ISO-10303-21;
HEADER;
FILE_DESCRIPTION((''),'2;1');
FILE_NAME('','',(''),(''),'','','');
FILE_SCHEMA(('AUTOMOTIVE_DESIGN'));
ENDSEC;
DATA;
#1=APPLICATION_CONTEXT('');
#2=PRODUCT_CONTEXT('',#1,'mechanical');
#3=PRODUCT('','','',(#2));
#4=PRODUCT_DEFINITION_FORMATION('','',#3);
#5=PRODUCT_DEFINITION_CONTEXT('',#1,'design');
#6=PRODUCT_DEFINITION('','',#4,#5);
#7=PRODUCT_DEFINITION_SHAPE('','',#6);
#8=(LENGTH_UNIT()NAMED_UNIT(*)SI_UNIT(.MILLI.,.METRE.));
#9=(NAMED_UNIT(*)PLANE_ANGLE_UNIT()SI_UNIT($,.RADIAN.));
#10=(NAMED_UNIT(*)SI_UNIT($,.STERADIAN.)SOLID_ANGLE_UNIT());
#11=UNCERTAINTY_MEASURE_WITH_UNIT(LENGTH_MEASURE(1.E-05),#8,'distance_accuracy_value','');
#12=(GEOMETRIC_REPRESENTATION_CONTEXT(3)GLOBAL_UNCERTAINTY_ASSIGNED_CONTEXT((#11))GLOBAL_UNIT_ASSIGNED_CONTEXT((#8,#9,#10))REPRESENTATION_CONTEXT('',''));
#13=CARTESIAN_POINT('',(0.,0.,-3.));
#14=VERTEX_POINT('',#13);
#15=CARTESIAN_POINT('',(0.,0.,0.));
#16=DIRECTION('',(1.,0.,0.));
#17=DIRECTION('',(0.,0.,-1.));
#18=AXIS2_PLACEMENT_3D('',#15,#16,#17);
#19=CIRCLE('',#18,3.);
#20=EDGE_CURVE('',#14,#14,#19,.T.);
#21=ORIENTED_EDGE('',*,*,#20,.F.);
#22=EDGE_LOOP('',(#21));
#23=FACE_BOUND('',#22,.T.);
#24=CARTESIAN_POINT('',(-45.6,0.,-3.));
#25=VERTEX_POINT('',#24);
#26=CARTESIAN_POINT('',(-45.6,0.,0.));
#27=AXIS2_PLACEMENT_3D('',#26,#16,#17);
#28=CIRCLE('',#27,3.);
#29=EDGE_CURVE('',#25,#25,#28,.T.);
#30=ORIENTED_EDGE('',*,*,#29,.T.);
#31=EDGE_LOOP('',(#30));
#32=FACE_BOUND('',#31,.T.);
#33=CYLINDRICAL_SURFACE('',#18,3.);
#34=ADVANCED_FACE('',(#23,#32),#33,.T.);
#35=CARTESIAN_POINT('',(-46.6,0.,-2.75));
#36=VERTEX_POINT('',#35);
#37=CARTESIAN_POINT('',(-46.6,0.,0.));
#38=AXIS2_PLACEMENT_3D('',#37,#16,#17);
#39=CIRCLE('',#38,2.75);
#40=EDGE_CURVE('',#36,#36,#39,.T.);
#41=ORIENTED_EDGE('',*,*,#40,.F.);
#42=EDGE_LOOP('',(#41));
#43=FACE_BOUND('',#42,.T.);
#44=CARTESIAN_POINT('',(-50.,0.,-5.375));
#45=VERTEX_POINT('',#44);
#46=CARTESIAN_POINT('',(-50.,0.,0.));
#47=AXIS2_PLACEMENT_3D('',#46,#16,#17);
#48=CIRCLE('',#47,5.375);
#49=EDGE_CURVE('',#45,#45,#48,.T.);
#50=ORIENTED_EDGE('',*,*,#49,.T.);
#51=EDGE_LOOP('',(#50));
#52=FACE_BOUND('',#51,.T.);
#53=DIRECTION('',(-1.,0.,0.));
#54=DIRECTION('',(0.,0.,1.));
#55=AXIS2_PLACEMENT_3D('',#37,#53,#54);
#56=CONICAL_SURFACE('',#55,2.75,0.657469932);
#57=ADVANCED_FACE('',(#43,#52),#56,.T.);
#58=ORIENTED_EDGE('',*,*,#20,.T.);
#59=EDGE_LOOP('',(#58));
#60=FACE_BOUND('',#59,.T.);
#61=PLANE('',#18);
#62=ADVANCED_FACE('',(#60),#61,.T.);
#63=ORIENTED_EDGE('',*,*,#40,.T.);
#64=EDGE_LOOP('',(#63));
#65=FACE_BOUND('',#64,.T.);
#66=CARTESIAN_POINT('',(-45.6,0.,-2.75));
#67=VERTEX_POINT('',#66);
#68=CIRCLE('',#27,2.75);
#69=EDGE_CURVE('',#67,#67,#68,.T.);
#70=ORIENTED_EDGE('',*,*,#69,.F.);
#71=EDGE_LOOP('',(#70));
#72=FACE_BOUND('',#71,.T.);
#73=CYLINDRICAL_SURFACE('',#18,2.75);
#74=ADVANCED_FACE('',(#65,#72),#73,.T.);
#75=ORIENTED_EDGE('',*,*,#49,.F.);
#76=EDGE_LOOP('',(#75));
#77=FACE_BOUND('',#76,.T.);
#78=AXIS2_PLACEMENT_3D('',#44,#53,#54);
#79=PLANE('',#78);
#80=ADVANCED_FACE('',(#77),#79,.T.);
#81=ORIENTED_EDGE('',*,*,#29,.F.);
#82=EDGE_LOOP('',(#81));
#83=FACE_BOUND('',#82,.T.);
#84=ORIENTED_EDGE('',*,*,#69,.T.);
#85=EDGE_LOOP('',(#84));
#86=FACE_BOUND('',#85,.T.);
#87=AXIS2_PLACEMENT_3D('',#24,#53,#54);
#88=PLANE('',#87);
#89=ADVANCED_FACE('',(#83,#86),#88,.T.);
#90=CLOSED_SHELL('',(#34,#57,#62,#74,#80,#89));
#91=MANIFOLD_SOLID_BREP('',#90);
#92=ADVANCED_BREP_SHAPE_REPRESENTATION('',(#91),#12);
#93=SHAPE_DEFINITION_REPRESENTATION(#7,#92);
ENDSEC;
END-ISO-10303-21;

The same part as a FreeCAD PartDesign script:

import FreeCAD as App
import Part
import Sketcher
from FreeCAD import Vector


def add_polygon(sketch, points):
    """Adds a closed chain of lines whose ends are joined by coincident constraints."""
    first, n = sketch.GeometryCount, len(points)
    for a, b in zip(points, points[1:] + points[:1]):
        sketch.addGeometry(Part.LineSegment(App.Vector(*a, 0), App.Vector(*b, 0)), False)
    for i in range(n):
        sketch.addConstraint(Sketcher.Constraint("Coincident", first + i, 2, first + (i + 1) % n, 1))

doc = App.newDocument("Part")
body = doc.addObject("PartDesign::Body", "Body")

sketch1 = doc.addObject("Sketcher::SketchObject", "Sketch")
body.addObject(sketch1)
sketch1.AttachmentSupport = (doc.XZ_Plane, [""])
sketch1.MapMode = "FlatFace"
add_polygon(sketch1, [(-50, 0), (0, 0), (0, -3), (-45.6, -3), (-45.6, -2.75), (-46.6, -2.75), (-50, -5.38)])
sketch1.addConstraint([
    Sketcher.Constraint("Horizontal", 0),
    Sketcher.Constraint("Vertical", 1),
    Sketcher.Constraint("Horizontal", 2),
    Sketcher.Constraint("Vertical", 3),
    Sketcher.Constraint("Horizontal", 4),
    Sketcher.Constraint("Vertical", 6),
    Sketcher.Constraint("Coincident", 0, 2, -1, 1),
    Sketcher.Constraint("DistanceX", 0, 1, 0, 2, 50.0),
    Sketcher.Constraint("DistanceX", 4, 2, 4, 1, 1.0),
    Sketcher.Constraint("DistanceY", 1, 2, 1, 1, 3.0),
    Sketcher.Constraint("DistanceX", 2, 2, 2, 1, 45.6),
    Sketcher.Constraint("DistanceY", 3, 1, 3, 2, 0.25),
    Sketcher.Constraint("DistanceY", 6, 1, 6, 2, 5.375),
])
revolution = doc.addObject("PartDesign::Revolution", "Revolution")
body.addObject(revolution)
revolution.Profile = sketch1
revolution.ReferenceAxis = (sketch1, ["H_Axis"])
revolution.Angle = 360

doc.recompute()
